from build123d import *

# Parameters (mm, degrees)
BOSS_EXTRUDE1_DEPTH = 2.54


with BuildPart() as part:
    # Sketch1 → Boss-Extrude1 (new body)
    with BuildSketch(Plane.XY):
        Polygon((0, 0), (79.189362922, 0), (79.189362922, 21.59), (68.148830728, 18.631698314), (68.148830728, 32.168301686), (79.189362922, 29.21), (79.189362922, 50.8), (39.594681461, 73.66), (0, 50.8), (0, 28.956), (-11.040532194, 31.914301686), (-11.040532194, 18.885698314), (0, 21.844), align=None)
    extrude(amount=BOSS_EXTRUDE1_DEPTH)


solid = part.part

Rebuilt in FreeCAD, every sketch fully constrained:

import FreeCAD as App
import Part
import Sketcher
from FreeCAD import Vector
Q = App.Units.Quantity


def add_polygon(sketch, points):
    """Adds a closed chain of lines whose ends are joined by coincident constraints."""
    first, n = sketch.GeometryCount, len(points)
    for a, b in zip(points, points[1:] + points[:1]):
        sketch.addGeometry(Part.LineSegment(App.Vector(*a, 0), App.Vector(*b, 0)), False)
    for i in range(n):
        sketch.addConstraint(Sketcher.Constraint("Coincident", first + i, 2, first + (i + 1) % n, 1))

doc = App.newDocument("Part")
body = doc.addObject("PartDesign::Body", "Body")

sketch1 = doc.addObject("Sketcher::SketchObject", "Sketch")
body.addObject(sketch1)
sketch1.AttachmentSupport = (doc.XY_Plane, [""])
sketch1.MapMode = "FlatFace"
add_polygon(sketch1, [(0, 0), (79, 0), (79, 22), (68, 19), (68, 32), (79, 29), (79, 51), (40, 74), (0, 51), (0, 29), (-11, 32), (-11, 19), (0, 22)])
sketch1.addConstraint([
    Sketcher.Constraint("Horizontal", 0),
    Sketcher.Constraint("Vertical", 1),
    Sketcher.Constraint("Vertical", 3),
    Sketcher.Constraint("Vertical", 5),
    Sketcher.Constraint("Vertical", 8),
    Sketcher.Constraint("Vertical", 10),
    Sketcher.Constraint("Vertical", 12),
    Sketcher.Constraint("Coincident", 12, 2, -1, 1),
    Sketcher.Constraint("PointOnObject", 7, 2, -2),
    Sketcher.Constraint("Parallel", 4, 9),
    Sketcher.Constraint("Parallel", 2, 11),
    Sketcher.Constraint("Horizontal", 5, 2, 7, 2),
    Sketcher.Constraint("Vertical", 1, 2, 4, 2),
    Sketcher.Constraint("Equal", 1, 5),
    Sketcher.Constraint("Equal", 8, 12),
    Sketcher.Constraint("Equal", 2, 4),
    Sketcher.Constraint("Equal", 6, 7),
    Sketcher.Constraint("Equal", 4, 9),
    Sketcher.Constraint("DistanceY", -1, 1, 5, 2, Q("2 in")),
    Sketcher.Constraint("Angle", 2, Q("-165 deg")),
    Sketcher.Constraint("Angle", 6, Q("150 deg")),
    Sketcher.Constraint("Distance", 6, Q("1.8 in")),
    Sketcher.Constraint("DistanceY", 1, 1, 1, 2, Q("0.85 in")),
    Sketcher.Constraint("DistanceY", 8, 2, 8, 1, Q("0.86 in")),
    Sketcher.Constraint("Distance", 2, Q("0.45 in")),
])
pad1 = doc.addObject("PartDesign::Pad", "Pad")
body.addObject(pad1)
pad1.Profile = sketch1
pad1.Length = Q("0.1 in")

doc.recompute()
